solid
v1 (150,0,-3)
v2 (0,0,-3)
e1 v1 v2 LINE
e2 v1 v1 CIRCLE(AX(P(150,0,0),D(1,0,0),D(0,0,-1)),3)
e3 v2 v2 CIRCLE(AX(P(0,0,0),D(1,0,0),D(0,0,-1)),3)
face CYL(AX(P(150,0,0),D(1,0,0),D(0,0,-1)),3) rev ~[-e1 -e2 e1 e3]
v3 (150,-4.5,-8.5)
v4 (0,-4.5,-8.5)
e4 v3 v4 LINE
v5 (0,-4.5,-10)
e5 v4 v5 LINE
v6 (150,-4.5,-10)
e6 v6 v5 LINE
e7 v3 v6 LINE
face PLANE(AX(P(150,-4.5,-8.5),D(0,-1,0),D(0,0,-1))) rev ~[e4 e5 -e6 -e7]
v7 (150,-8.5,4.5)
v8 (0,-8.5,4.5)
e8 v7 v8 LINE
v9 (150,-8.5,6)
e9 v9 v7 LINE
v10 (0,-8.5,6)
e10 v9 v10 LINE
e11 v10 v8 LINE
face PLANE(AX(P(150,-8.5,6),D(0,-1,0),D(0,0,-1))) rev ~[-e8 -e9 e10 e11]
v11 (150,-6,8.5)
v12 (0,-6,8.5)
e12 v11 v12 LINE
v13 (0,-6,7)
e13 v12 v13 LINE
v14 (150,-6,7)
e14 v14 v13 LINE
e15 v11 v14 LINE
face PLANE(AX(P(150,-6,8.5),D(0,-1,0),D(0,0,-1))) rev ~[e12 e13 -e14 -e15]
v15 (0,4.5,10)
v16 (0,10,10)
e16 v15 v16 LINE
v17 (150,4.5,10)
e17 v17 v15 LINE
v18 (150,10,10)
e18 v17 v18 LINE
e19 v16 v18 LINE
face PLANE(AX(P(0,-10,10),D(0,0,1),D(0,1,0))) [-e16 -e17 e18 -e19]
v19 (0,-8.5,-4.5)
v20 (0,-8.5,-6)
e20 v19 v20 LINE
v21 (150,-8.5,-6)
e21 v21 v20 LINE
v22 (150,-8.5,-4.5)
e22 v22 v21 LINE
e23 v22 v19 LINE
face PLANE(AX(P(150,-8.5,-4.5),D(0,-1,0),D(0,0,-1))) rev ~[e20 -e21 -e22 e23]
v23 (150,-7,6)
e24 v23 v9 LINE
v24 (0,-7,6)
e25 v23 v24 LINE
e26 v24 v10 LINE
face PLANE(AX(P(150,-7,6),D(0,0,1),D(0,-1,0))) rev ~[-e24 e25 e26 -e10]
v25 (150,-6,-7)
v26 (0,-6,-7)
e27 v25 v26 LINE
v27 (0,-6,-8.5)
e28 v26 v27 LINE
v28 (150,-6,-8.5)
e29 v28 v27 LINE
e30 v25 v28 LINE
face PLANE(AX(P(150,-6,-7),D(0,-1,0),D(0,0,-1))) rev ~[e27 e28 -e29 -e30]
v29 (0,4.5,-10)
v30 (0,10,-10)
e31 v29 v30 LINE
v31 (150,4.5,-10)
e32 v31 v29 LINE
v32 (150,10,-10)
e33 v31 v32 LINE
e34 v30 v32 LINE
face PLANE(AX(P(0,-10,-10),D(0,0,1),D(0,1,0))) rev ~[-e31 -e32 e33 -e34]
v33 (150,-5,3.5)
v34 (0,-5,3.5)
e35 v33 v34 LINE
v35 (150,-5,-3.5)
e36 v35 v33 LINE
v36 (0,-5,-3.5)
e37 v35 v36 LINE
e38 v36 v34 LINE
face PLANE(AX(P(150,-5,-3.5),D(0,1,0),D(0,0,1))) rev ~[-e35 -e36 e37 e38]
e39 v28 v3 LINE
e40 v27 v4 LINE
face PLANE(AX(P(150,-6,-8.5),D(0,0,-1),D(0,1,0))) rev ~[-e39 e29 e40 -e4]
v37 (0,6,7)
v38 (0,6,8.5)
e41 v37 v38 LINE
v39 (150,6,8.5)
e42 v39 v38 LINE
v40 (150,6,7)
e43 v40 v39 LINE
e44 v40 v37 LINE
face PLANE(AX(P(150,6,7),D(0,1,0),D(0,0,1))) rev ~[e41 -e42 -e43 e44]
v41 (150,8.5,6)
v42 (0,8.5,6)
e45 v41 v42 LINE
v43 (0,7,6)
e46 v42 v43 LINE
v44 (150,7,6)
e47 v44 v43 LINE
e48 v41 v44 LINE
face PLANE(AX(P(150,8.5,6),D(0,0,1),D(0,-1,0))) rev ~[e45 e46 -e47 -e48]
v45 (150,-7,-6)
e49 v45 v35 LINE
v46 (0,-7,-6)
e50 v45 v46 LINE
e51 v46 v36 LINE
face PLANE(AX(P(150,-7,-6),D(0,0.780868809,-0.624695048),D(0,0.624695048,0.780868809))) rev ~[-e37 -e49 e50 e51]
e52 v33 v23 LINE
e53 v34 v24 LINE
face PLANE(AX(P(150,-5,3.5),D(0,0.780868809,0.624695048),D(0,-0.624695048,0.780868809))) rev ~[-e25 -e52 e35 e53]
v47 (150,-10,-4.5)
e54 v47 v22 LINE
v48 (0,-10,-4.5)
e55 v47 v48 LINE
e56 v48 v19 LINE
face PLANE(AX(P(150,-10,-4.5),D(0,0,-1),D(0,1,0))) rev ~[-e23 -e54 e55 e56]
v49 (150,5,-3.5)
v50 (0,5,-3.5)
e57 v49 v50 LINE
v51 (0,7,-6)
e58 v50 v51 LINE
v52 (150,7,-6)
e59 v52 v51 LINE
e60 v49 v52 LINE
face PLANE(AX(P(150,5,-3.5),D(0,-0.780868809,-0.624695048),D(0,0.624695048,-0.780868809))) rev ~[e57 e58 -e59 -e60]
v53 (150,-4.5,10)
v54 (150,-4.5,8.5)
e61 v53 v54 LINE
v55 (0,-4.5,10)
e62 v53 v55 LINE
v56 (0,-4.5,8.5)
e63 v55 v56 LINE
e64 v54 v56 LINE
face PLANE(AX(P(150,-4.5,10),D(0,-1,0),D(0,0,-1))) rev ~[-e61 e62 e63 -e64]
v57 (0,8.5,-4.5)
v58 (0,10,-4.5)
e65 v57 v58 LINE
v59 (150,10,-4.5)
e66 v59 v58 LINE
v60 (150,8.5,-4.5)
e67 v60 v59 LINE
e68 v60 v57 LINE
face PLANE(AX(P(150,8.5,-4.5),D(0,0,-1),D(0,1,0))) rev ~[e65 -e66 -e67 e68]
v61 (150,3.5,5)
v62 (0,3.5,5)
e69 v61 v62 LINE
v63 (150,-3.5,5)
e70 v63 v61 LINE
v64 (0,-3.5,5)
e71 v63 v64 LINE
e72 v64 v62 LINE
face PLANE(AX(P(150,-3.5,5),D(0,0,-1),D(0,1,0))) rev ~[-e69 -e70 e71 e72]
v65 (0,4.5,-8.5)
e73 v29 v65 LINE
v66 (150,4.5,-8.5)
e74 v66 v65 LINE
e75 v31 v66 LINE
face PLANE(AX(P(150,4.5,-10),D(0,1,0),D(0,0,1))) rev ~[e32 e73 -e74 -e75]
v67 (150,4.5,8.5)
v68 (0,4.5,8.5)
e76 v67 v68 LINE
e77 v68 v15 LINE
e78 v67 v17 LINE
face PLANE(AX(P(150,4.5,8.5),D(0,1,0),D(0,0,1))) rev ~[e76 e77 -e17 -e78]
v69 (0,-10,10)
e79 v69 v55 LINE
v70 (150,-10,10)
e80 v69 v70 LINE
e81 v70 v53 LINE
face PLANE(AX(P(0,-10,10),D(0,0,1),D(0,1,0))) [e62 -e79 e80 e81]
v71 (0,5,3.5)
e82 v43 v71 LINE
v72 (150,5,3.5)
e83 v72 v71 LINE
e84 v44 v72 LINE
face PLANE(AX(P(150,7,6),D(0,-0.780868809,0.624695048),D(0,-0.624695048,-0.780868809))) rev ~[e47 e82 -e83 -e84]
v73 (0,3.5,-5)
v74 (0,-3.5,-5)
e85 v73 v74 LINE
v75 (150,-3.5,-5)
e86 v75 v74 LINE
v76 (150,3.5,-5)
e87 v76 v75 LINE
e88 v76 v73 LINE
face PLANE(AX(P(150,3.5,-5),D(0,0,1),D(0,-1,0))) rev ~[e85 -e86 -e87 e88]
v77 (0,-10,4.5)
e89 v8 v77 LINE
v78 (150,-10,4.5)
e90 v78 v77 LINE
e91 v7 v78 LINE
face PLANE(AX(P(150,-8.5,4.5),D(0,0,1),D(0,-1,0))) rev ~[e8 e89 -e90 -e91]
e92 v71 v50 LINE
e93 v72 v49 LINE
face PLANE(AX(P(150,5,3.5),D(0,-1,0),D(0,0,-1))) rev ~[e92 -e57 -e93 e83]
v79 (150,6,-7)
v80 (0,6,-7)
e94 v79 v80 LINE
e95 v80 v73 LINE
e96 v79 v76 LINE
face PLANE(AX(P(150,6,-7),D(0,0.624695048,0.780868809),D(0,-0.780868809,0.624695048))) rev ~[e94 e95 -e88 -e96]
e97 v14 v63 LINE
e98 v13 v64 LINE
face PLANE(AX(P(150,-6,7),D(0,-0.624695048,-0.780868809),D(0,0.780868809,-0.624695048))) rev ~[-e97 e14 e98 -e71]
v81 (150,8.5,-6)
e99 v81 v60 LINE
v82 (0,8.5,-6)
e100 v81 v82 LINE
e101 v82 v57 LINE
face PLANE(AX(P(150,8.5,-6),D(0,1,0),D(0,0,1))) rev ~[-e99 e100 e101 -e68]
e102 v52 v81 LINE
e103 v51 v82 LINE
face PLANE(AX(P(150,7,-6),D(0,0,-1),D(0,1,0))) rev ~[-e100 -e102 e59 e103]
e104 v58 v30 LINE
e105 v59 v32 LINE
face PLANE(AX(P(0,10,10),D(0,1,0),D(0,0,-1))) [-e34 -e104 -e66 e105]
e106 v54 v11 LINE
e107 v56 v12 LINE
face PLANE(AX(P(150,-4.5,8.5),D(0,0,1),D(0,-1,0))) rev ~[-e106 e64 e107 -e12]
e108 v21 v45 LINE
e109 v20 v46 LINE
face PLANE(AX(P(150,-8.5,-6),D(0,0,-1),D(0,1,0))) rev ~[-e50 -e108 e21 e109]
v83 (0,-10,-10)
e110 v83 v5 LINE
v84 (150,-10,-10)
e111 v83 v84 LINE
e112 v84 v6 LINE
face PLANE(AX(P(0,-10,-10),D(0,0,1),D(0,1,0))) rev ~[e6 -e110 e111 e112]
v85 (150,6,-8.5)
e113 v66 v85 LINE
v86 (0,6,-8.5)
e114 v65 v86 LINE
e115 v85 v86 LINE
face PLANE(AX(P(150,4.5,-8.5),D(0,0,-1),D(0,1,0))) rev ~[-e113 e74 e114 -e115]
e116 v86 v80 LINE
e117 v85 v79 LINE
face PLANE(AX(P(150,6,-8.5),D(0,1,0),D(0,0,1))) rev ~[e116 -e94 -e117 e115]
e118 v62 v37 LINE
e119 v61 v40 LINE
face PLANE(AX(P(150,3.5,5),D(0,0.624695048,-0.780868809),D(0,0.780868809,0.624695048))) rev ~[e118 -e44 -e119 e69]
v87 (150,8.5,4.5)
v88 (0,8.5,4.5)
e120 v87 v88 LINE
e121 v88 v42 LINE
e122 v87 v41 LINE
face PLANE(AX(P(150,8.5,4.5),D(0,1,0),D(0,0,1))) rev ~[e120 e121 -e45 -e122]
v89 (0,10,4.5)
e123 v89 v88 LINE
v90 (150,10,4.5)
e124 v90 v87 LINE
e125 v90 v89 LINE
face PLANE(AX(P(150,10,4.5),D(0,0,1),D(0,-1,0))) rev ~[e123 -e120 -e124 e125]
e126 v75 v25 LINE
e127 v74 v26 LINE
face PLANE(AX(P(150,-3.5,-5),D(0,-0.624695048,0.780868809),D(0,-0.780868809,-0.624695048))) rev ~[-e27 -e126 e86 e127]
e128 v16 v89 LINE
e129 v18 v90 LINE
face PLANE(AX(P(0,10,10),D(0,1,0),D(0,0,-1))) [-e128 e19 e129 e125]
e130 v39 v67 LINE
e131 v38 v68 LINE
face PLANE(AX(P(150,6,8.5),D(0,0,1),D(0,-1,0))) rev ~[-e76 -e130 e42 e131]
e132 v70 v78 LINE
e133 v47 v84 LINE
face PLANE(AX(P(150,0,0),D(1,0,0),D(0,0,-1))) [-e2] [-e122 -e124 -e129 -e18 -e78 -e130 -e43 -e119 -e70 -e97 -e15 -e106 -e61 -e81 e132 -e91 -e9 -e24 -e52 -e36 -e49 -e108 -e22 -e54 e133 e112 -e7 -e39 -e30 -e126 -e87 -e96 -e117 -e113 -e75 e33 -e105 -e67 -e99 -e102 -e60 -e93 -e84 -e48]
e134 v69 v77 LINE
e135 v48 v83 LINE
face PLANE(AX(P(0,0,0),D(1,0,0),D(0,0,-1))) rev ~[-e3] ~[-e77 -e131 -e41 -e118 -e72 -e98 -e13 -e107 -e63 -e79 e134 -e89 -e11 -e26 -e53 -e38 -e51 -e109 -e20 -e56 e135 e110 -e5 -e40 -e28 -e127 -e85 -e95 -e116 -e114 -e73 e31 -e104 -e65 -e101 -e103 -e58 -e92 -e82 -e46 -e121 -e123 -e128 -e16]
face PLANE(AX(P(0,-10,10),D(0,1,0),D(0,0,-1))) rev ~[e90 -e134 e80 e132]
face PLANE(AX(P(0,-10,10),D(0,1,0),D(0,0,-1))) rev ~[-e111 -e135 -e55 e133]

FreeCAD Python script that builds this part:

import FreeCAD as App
import Part
import Sketcher
from FreeCAD import Vector
Q = App.Units.Quantity


def add_polygon(sketch, points):
    """Adds a closed chain of lines whose ends are joined by coincident constraints."""
    first, n = sketch.GeometryCount, len(points)
    for a, b in zip(points, points[1:] + points[:1]):
        sketch.addGeometry(Part.LineSegment(App.Vector(*a, 0), App.Vector(*b, 0)), False)
    for i in range(n):
        sketch.addConstraint(Sketcher.Constraint("Coincident", first + i, 2, first + (i + 1) % n, 1))

doc = App.newDocument("Part")
params = doc.addObject("Spreadsheet::Sheet", "Params")
for row, (alias, value) in enumerate([
    ("sketch1_width", "20 mm"),
    ("pad1_length", "150 mm"),
    ("sketch2_diameter", "6 mm"),
    ("sketch3_height", "9 mm"),
    ("sketch3_height2", "7 mm"),
    ("sketch3_width", "1.5 mm"),
], start=1):
    params.set(f"A{row}", alias)
    params.set(f"B{row}", "=" + value)
    params.setAlias(f"B{row}", alias)

body = doc.addObject("PartDesign::Body", "Body")

# Sketch on YZ plane
sketch1 = body.newObject("Sketcher::SketchObject", "Sketch")
sketch1.AttachmentSupport = (doc.getObject("YZ_Plane"), [""])
sketch1.MapMode = "FlatFace"
add_polygon(sketch1, [(10, 10), (-10, 10), (-10, -10), (10, -10)])  # lines 0-3
sketch1.addConstraint([
    Sketcher.Constraint("Horizontal", 0),
    Sketcher.Constraint("Vertical", 1),
    Sketcher.Constraint("Horizontal", 2),
    Sketcher.Constraint("Vertical", 3),
    Sketcher.Constraint("Symmetric", 0, 2, 2, 2, -1, 1),
    Sketcher.Constraint("Equal", 2, 1),
    Sketcher.Constraint("DistanceX", 0, 2, 0, 1, Q("20 mm")),
])
sketch1.setExpression("Constraints[10]", "Params.sketch1_width")
pad1 = body.newObject("PartDesign::Pad", "Pad")
pad1.Profile = sketch1
pad1.setExpression("Length", "Params.pad1_length")

# Sketch on YZ plane
sketch2 = body.newObject("Sketcher::SketchObject", "Sketch001")
sketch2.AttachmentSupport = (doc.getObject("YZ_Plane"), [""])
sketch2.MapMode = "FlatFace"
sketch2.AttachmentOffset = App.Placement(Vector(0, 0, 150), App.Rotation())
sketch2.addGeometry(Part.Circle(Vector(0, 0, 0), Vector(0, 0, 1), 3), False)
sketch2.addConstraint([
    Sketcher.Constraint("Coincident", 0, 3, -1, 1),
    Sketcher.Constraint("Diameter", 0, Q("6 mm")),
])
sketch2.setExpression("Constraints[1]", "Params.sketch2_diameter")
pocket1 = body.newObject("PartDesign::Pocket", "Pocket")
pocket1.Profile = sketch2
pocket1.Type = "ThroughAll"

# Sketch on YZ plane
sketch3 = body.newObject("Sketcher::SketchObject", "Sketch002")
sketch3.AttachmentSupport = (doc.getObject("YZ_Plane"), [""])
sketch3.MapMode = "FlatFace"
sketch3.AttachmentOffset = App.Placement(Vector(0, 0, 150), App.Rotation())
add_polygon(sketch3, [(5, -3.5), (7, -6), (8.5, -6), (8.5, -4.5), (10, -4.5), (10, 4.5), (8.5, 4.5), (8.5, 6), (7, 6), (5, 3.5)])  # lines 0-9
sketch3.addConstraint([
    Sketcher.Constraint("Horizontal", 1),
    Sketcher.Constraint("Vertical", 2),
    Sketcher.Constraint("Horizontal", 3),
    Sketcher.Constraint("Vertical", 4),
    Sketcher.Constraint("Horizontal", 5),
    Sketcher.Constraint("Vertical", 6),
    Sketcher.Constraint("Horizontal", 7),
    Sketcher.Constraint("Vertical", 9),
    Sketcher.Constraint("Symmetric", 2, 2, 5, 2, -1),
    Sketcher.Constraint("Symmetric", 0, 2, 7, 2, -1),
    Sketcher.Constraint("Equal", 1, 3),
    Sketcher.Constraint("Equal", 7, 2),
    Sketcher.Constraint("Equal", 0, 8),
    Sketcher.Constraint("DistanceY", 4, 1, 4, 2, Q("9 mm")),
    Sketcher.Constraint("DistanceY", 9, 2, 9, 1, Q("7 mm")),
    Sketcher.Constraint("DistanceX", 1, 1, 1, 2, Q("1.5 mm")),
    Sketcher.Constraint("DistanceX", -1, 1, 0, 2, Q("7 mm")),
    Sketcher.Constraint("DistanceX", -1, 1, 8, 2, Q("5 mm")),
])
sketch3.setExpression("Constraints[23]", "Params.sketch3_height")
sketch3.setExpression("Constraints[24]", "Params.sketch3_height2")
sketch3.setExpression("Constraints[25]", "Params.sketch3_width")
pocket2 = body.newObject("PartDesign::Pocket", "Pocket001")
pocket2.Profile = sketch3
pocket2.Type = "ThroughAll"
doc.recompute()

polarpattern = body.newObject("PartDesign::PolarPattern", "PolarPattern")
polarpattern.Originals = [pocket2]
polarpattern.Axis = (doc.getObject("X_Axis"), [""])
polarpattern.Angle = 360
polarpattern.Occurrences = 4
body.Tip = polarpattern

doc.recompute()
